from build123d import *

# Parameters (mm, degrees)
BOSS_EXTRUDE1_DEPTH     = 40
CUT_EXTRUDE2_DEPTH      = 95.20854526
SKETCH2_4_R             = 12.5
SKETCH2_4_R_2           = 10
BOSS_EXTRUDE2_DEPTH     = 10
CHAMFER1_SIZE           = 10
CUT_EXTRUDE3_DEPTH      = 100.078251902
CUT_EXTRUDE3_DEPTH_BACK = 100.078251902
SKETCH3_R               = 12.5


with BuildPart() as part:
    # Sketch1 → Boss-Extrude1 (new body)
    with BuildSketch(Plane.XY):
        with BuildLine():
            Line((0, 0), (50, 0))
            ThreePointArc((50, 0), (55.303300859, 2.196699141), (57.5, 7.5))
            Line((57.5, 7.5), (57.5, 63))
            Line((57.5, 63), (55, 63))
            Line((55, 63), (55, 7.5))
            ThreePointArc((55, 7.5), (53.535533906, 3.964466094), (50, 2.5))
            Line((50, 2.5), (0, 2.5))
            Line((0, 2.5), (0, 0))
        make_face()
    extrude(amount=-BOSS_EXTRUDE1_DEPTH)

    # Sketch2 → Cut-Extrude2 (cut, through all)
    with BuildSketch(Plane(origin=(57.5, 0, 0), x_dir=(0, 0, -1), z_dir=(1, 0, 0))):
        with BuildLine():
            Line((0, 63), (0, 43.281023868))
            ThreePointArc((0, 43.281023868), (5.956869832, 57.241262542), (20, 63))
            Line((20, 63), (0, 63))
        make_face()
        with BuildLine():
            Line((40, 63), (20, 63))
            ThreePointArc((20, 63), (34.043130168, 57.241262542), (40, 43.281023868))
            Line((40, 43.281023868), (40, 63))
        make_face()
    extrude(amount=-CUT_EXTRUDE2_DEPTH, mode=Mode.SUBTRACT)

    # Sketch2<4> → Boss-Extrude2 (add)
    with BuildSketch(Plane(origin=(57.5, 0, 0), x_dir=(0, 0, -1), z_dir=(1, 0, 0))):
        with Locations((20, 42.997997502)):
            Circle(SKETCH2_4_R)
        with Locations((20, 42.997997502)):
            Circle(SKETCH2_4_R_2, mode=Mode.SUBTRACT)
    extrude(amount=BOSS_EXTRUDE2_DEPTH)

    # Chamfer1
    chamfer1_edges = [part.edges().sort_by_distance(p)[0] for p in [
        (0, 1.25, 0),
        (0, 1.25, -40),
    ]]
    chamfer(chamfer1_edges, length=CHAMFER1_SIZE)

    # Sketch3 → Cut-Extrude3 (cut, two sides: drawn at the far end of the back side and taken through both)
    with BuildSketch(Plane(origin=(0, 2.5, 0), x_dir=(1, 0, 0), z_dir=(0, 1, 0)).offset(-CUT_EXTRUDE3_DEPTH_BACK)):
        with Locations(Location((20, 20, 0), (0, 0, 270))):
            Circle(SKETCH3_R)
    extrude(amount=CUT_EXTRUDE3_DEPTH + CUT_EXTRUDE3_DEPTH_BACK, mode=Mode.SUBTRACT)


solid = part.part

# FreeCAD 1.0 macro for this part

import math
import FreeCAD as App
import Part
import Sketcher


def edges_at(feature, points):
    """Names of the edges that pass closest to the given points."""
    edges = feature.Shape.Edges
    near = lambda p: min(range(len(edges)), key=lambda i: edges[i].distToShape(Part.Vertex(*p))[0])
    return sorted({f"Edge{near(p) + 1}" for p in points})

doc = App.newDocument("Part")
params = doc.addObject("Spreadsheet::Sheet", "Params")
for row, (alias, value) in enumerate([
    ("sketch1_radius", "5 mm"),
    ("sketch1_radius2", "7.5 mm"),
    ("sketch1_width", "50 mm"),
    ("sketch1_height", "55.5 mm"),
    ("pad1_length", "40 mm"),
    ("sketch2_height", "20 mm"),
    ("sketch2_height2", "20 mm"),
    ("sketch3_diameter", "25 mm"),
    ("sketch3_diameter2", "20 mm"),
    ("pad2_length", "10 mm"),
    ("chamfer_size", "10 mm"),
    ("sketch4_diameter", "25 mm"),
], start=1):
    params.set(f"A{row}", alias)
    params.set(f"B{row}", "=" + value)
    params.setAlias(f"B{row}", alias)

body = doc.addObject("PartDesign::Body", "Body")

sketch1 = body.newObject("Sketcher::SketchObject", "Sketch")
sketch1.AttachmentSupport = (doc.getObject("XY_Plane"), [""])
sketch1.MapMode = "FlatFace"
sketch1.addGeometry([
    Part.LineSegment(App.Vector(0, 0, 0), App.Vector(50, 0, 0)),
    Part.ArcOfCircle(Part.Circle(App.Vector(50, 7.5, 0), App.Vector(0, 0, 1), 7.5), math.radians(-90), math.radians(0)),
    Part.LineSegment(App.Vector(57.5, 7.5, 0), App.Vector(57.5, 63, 0)),
    Part.LineSegment(App.Vector(57.5, 63, 0), App.Vector(55, 63, 0)),
    Part.LineSegment(App.Vector(55, 63, 0), App.Vector(55, 7.5, 0)),
    Part.ArcOfCircle(Part.Circle(App.Vector(50, 7.5, 0), App.Vector(0, 0, 1), 5), math.radians(-90), math.radians(0)),
    Part.LineSegment(App.Vector(50, 2.5, 0), App.Vector(0, 2.5, 0)),
    Part.LineSegment(App.Vector(0, 2.5, 0), App.Vector(0, 0, 0)),
], False)
sketch1.addConstraint([
    Sketcher.Constraint("Tangent", 0, 2, 1, 1),
    Sketcher.Constraint("Tangent", 1, 2, 2, 1),
    Sketcher.Constraint("Coincident", 2, 2, 3, 1),
    Sketcher.Constraint("Coincident", 3, 2, 4, 1),
    Sketcher.Constraint("Tangent", 4, 2, 5, 2),
    Sketcher.Constraint("Tangent", 5, 1, 6, 1),
    Sketcher.Constraint("Coincident", 6, 2, 7, 1),
    Sketcher.Constraint("Coincident", 7, 2, 0, 1),
    Sketcher.Constraint("Horizontal", 0),
    Sketcher.Constraint("Vertical", 2),
    Sketcher.Constraint("Horizontal", 3),
    Sketcher.Constraint("Vertical", 4),
    Sketcher.Constraint("Horizontal", 6),
    Sketcher.Constraint("Vertical", 7),
    Sketcher.Constraint("Coincident", 7, 2, -1, 1),
    Sketcher.Constraint("Coincident", 5, 3, 1, 3),
    Sketcher.Constraint("Radius", 5, 5.0),
    Sketcher.Constraint("Radius", 1, 7.5),
    Sketcher.Constraint("DistanceX", 0, 1, 0, 2, 50.0),
    Sketcher.Constraint("DistanceY", 2, 1, 2, 2, 55.5),
])
sketch1.setExpression("Constraints[16]", "Params.sketch1_radius")
sketch1.setExpression("Constraints[17]", "Params.sketch1_radius2")
sketch1.setExpression("Constraints[18]", "Params.sketch1_width")
sketch1.setExpression("Constraints[19]", "Params.sketch1_height")
pad1 = body.newObject("PartDesign::Pad", "Pad")
pad1.Profile = sketch1
pad1.setExpression("Length", "Params.pad1_length")
pad1.Reversed = True

sketch2 = body.newObject("Sketcher::SketchObject", "Sketch001")
sketch2.AttachmentSupport = (doc.getObject("YZ_Plane"), [""])
sketch2.MapMode = "FlatFace"
sketch2.AttachmentOffset = App.Placement(App.Vector(0, 0, 57.5), App.Rotation())
sketch2.addGeometry([
    Part.LineSegment(App.Vector(63, 0, 0), App.Vector(43.281024, 0, 0)),
    Part.ArcOfCircle(Part.Circle(App.Vector(42.997998, -20, 0), App.Vector(0, 0, 1), 20.002002), math.radians(0), math.radians(89.189243)),
    Part.LineSegment(App.Vector(63, -20, 0), App.Vector(63, 0, 0)),
    Part.LineSegment(App.Vector(63, -40, 0), App.Vector(63, -20, 0)),
    Part.ArcOfCircle(Part.Circle(App.Vector(42.997998, -20, 0), App.Vector(0, 0, 1), 20.002002), math.radians(-89.189243), math.radians(0)),
    Part.LineSegment(App.Vector(43.281024, -40, 0), App.Vector(63, -40, 0)),
], False)
sketch2.addConstraint([
    Sketcher.Constraint("Coincident", 0, 2, 1, 2),
    Sketcher.Constraint("Coincident", 1, 1, 2, 1),
    Sketcher.Constraint("Coincident", 2, 2, 0, 1),
    Sketcher.Constraint("Coincident", 3, 2, 4, 2),
    Sketcher.Constraint("Coincident", 4, 1, 5, 1),
    Sketcher.Constraint("Coincident", 5, 2, 3, 1),
    Sketcher.Constraint("Horizontal", 0),
    Sketcher.Constraint("Vertical", 2),
    Sketcher.Constraint("Vertical", 3),
    Sketcher.Constraint("Horizontal", 5),
    Sketcher.Constraint("Coincident", 4, 3, 1, 3),
    Sketcher.Constraint("Coincident", 3, 2, 1, 1),
    Sketcher.Constraint("PointOnObject", 0, 2, -1),
    Sketcher.Constraint("DistanceY", 2, 1, 2, 2, 20.0),
    Sketcher.Constraint("DistanceY", 3, 1, 3, 2, 20.0),
    Sketcher.Constraint("DistanceY", 1, 3, -1, 1, 20.0),
    Sketcher.Constraint("DistanceX", -1, 1, 1, 1, 63.0),
    Sketcher.Constraint("Radius", 1, 20.002002),
])
sketch2.setExpression("Constraints[13]", "Params.sketch2_height")
sketch2.setExpression("Constraints[14]", "Params.sketch2_height2")
pocket1 = body.newObject("PartDesign::Pocket", "Pocket")
pocket1.Profile = sketch2
pocket1.Type = "ThroughAll"

sketch3 = body.newObject("Sketcher::SketchObject", "Sketch002")
sketch3.AttachmentSupport = (doc.getObject("YZ_Plane"), [""])
sketch3.MapMode = "FlatFace"
sketch3.AttachmentOffset = App.Placement(App.Vector(0, 0, 57.5), App.Rotation())
sketch3.addGeometry([
    Part.Circle(App.Vector(42.997998, -20, 0), App.Vector(0, 0, 1), 12.5),
    Part.Circle(App.Vector(42.997998, -20, 0), App.Vector(0, 0, 1), 10),
], False)
sketch3.addConstraint([
    Sketcher.Constraint("Coincident", 1, 3, 0, 3),
    Sketcher.Constraint("Diameter", 0, 25.0),
    Sketcher.Constraint("Diameter", 1, 20.0),
    Sketcher.Constraint("DistanceY", 0, 3, -1, 1, 20.0),
    Sketcher.Constraint("DistanceX", -1, 1, 0, 3, 42.997998),
])
sketch3.setExpression("Constraints[1]", "Params.sketch3_diameter")
sketch3.setExpression("Constraints[2]", "Params.sketch3_diameter2")
pad2 = body.newObject("PartDesign::Pad", "Pad001")
pad2.Profile = sketch3
pad2.setExpression("Length", "Params.pad2_length")
doc.recompute()

chamfer = body.newObject("PartDesign::Chamfer", "Chamfer")
chamfer.Base = (pad2, edges_at(pad2, [(0, 1.25, 0), (0, 1.25, -40)]))
chamfer.setExpression("Size", "Params.chamfer_size")

sketch4 = body.newObject("Sketcher::SketchObject", "Sketch003")
sketch4.AttachmentSupport = (doc.getObject("XZ_Plane"), [""])
sketch4.MapMode = "FlatFace"
sketch4.AttachmentOffset = App.Placement(App.Vector(0, 0, -2.5), App.Rotation())
sketch4.addGeometry(Part.Circle(App.Vector(20, -20, 0), App.Vector(0, 0, 1), 12.5), False)
sketch4.addConstraint([
    Sketcher.Constraint("Diameter", 0, 25.0),
    Sketcher.Constraint("DistanceX", -1, 1, 0, 3, 20.0),
    Sketcher.Constraint("DistanceY", 0, 3, -1, 1, 20.0),
])
sketch4.setExpression("Constraints[0]", "Params.sketch4_diameter")
pocket2 = body.newObject("PartDesign::Pocket", "Pocket001")
pocket2.Profile = sketch4
pocket2.Type = "ThroughAll"
pocket2.Midplane = True

doc.recompute()
